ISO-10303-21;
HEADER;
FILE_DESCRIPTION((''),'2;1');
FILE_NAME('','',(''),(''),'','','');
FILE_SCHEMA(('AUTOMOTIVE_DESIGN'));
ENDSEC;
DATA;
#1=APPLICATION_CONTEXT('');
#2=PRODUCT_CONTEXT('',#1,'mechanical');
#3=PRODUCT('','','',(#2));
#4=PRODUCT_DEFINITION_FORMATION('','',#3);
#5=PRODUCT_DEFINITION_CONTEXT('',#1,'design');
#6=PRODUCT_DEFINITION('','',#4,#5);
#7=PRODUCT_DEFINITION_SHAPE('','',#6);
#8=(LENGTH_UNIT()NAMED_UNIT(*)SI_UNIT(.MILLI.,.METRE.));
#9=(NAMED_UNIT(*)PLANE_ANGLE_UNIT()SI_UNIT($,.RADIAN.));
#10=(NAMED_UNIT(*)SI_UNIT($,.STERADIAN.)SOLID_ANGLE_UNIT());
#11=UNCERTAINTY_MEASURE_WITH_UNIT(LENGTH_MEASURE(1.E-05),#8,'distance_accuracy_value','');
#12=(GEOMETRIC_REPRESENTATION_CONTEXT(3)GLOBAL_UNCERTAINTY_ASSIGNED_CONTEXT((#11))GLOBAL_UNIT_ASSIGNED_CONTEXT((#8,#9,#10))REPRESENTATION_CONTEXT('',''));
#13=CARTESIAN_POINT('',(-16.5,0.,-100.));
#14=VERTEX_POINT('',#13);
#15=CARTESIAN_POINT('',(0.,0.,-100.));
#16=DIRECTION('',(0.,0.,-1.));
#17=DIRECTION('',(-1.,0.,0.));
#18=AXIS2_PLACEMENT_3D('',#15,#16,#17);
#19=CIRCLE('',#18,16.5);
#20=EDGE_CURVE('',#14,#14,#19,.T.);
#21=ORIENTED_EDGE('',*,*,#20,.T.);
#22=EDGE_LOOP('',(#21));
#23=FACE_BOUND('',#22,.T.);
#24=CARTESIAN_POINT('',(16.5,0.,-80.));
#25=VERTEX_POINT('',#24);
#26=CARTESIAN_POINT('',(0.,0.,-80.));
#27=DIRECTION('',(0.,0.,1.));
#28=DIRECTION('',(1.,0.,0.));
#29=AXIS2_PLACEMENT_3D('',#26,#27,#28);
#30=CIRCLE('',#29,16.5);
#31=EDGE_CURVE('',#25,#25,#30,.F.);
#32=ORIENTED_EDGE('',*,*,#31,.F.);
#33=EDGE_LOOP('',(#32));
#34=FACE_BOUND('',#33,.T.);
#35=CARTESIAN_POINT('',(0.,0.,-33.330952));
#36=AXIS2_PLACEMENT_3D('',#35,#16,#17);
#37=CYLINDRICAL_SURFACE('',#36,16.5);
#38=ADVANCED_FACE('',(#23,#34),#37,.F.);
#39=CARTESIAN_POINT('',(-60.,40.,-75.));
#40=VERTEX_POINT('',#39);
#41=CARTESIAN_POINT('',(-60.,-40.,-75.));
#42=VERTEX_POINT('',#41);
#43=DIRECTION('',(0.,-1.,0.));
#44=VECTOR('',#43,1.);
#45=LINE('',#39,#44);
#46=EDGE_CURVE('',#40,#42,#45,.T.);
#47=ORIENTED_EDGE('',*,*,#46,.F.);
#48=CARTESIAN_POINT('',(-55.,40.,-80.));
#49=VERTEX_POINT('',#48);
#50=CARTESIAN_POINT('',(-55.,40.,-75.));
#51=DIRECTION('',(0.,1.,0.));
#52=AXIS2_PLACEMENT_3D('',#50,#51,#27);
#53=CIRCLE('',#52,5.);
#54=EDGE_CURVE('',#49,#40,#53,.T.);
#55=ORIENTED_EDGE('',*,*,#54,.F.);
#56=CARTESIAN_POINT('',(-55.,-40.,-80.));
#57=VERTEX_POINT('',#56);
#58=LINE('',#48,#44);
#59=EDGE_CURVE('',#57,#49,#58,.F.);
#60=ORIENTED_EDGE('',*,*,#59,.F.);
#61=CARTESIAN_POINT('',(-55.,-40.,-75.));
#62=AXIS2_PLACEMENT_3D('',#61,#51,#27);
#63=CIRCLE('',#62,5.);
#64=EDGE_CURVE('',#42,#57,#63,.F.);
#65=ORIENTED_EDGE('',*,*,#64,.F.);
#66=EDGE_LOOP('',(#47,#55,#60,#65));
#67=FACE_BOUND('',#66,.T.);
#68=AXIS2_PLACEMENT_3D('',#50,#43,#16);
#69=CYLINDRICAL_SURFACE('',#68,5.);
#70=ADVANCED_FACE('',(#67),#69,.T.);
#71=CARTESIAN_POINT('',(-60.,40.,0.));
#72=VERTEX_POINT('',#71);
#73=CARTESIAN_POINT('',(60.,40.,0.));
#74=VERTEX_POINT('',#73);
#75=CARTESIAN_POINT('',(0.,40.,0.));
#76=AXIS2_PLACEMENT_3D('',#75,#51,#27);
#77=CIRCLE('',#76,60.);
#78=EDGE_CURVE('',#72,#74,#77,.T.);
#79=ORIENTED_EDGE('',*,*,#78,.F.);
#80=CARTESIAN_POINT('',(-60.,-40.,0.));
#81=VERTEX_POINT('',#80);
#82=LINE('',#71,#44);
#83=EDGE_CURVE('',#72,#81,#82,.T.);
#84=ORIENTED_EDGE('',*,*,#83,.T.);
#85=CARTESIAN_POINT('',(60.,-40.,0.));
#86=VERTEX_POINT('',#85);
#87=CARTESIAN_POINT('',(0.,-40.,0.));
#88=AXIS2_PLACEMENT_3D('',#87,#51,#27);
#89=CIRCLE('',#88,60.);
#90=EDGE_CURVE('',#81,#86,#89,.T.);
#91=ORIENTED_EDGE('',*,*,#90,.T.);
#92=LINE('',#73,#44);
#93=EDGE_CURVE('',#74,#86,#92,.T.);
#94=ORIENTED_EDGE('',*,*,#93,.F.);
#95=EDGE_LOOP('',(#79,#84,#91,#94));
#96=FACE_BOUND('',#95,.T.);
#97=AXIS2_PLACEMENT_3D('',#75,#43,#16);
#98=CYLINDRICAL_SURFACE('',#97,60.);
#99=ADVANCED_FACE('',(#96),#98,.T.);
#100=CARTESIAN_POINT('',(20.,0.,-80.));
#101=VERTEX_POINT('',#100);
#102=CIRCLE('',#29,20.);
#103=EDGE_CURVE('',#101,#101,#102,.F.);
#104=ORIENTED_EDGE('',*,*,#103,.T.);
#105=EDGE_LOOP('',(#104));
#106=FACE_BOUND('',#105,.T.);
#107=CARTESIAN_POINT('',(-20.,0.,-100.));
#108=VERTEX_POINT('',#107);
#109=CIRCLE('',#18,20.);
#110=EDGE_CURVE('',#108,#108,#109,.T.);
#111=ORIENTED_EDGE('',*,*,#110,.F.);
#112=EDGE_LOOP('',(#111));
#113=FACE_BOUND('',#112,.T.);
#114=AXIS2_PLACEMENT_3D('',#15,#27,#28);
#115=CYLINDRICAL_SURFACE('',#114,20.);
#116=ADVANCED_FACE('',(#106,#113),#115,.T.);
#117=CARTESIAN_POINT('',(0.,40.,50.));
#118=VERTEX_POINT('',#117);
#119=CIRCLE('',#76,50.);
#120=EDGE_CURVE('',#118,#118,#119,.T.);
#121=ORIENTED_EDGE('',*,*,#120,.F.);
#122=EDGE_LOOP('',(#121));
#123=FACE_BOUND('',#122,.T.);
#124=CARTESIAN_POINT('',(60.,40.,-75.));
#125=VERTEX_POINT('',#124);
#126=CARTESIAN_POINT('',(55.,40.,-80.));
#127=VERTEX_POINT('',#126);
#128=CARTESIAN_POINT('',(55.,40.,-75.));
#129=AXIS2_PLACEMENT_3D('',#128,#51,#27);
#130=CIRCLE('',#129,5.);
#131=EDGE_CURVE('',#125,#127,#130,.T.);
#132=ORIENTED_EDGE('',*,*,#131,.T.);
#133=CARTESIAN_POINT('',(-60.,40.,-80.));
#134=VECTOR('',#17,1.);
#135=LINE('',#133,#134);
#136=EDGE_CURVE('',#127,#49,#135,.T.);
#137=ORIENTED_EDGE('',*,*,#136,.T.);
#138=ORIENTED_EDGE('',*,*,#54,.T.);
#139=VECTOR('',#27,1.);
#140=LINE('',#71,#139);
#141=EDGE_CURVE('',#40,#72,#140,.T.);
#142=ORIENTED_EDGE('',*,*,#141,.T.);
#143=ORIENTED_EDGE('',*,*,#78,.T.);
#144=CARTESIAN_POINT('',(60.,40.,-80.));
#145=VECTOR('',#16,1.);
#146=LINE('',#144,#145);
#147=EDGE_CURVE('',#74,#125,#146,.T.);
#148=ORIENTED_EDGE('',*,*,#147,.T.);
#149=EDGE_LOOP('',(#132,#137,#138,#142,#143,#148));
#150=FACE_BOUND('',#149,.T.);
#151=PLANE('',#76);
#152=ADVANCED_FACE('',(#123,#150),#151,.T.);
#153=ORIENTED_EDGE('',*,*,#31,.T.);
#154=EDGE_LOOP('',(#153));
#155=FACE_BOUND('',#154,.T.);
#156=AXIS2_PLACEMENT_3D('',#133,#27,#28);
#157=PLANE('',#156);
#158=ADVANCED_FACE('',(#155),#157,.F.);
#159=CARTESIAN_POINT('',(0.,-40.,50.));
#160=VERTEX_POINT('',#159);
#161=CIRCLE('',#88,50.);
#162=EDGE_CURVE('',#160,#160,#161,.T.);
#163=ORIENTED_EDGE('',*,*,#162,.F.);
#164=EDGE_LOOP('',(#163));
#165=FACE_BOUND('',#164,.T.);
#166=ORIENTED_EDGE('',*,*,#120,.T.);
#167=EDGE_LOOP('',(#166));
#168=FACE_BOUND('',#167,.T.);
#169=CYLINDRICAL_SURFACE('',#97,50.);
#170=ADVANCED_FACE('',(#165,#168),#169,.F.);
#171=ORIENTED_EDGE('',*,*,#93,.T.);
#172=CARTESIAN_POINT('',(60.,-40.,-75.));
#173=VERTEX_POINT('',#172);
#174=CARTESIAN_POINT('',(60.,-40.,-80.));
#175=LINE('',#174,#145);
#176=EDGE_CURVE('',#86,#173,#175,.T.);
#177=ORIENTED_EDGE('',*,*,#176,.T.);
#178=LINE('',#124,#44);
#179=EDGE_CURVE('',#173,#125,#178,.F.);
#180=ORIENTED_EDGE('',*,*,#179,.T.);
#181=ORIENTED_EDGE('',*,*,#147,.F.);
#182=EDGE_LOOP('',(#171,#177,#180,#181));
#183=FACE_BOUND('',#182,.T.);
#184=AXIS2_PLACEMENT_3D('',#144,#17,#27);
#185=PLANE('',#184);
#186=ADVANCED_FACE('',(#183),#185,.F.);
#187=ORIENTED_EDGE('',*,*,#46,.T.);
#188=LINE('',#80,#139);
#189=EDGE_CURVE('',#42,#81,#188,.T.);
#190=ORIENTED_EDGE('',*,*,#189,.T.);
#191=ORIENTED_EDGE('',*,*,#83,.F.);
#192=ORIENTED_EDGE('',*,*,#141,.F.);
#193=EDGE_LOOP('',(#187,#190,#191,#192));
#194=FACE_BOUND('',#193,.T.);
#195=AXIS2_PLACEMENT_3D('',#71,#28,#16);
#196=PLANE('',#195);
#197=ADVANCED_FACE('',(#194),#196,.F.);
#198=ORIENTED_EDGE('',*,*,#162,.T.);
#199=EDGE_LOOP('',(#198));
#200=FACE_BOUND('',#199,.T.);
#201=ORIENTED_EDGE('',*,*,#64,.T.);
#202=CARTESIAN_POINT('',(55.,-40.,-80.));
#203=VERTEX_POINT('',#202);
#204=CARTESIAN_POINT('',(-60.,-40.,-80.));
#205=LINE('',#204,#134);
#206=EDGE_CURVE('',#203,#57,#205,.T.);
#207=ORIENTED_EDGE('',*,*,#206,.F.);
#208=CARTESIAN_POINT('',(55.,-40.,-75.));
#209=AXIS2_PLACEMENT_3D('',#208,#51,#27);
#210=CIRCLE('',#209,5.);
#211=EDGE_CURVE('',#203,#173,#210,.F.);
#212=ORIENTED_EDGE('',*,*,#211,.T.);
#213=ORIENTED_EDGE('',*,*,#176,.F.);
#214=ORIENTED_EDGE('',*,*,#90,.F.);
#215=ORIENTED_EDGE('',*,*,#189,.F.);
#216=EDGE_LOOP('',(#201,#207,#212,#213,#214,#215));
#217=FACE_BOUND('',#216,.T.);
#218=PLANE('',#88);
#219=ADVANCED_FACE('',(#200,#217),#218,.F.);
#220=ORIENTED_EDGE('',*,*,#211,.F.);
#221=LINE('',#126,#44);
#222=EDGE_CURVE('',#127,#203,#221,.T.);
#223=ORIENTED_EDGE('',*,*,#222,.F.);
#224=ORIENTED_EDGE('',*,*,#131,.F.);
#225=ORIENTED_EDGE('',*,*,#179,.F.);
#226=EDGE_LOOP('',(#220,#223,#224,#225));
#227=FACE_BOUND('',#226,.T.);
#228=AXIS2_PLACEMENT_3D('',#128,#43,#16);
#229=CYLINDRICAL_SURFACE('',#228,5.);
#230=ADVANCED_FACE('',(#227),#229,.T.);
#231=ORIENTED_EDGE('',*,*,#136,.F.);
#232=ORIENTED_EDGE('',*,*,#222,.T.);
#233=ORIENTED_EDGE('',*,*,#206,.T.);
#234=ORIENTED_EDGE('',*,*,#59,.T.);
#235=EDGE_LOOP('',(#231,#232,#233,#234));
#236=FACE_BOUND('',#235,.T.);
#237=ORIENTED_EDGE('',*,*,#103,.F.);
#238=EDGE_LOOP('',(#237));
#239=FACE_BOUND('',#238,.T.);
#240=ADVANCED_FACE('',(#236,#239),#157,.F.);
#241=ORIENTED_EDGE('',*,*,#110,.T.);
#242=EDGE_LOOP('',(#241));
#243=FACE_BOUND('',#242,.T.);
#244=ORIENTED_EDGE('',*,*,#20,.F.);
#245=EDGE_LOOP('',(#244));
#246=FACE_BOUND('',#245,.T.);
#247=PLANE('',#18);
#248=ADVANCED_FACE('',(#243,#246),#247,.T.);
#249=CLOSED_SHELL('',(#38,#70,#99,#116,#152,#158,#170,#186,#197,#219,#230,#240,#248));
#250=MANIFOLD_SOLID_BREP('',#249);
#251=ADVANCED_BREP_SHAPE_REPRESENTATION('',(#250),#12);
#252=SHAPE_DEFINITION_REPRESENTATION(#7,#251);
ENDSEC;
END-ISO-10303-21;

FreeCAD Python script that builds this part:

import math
import FreeCAD as App
import Part
import Sketcher


def edges_at(feature, points):
    """Names of the edges that pass closest to the given points."""
    edges = feature.Shape.Edges
    near = lambda p: min(range(len(edges)), key=lambda i: edges[i].distToShape(Part.Vertex(*p))[0])
    return sorted({f"Edge{near(p) + 1}" for p in points})

doc = App.newDocument("Part")
body = doc.addObject("PartDesign::Body", "Body")

sketch1 = body.newObject("Sketcher::SketchObject", "Sketch")
sketch1.AttachmentSupport = (doc.getObject("XZ_Plane"), [""])
sketch1.MapMode = "FlatFace"
sketch1.addGeometry(Part.LineSegment(App.Vector(-60, -80, 0), App.Vector(-60, 0, 0)), False)
sketch1.addGeometry(Part.ArcOfCircle(Part.Circle(App.Vector(0, 0, 0), App.Vector(0, 0, 1), 60), math.radians(0), math.radians(180)), False)
sketch1.addGeometry(Part.LineSegment(App.Vector(60, 0, 0), App.Vector(60, -80, 0)), False)
sketch1.addGeometry(Part.LineSegment(App.Vector(60, -80, 0), App.Vector(-60, -80, 0)), False)
sketch1.addGeometry(Part.Circle(App.Vector(0, 0, 0), App.Vector(0, 0, 1), 50), False)
sketch1.addConstraint(Sketcher.Constraint("Tangent", 0, 2, 1, 2))
sketch1.addConstraint(Sketcher.Constraint("Tangent", 1, 1, 2, 1))
sketch1.addConstraint(Sketcher.Constraint("Coincident", 2, 2, 3, 1))
sketch1.addConstraint(Sketcher.Constraint("Coincident", 3, 2, 0, 1))
sketch1.addConstraint(Sketcher.Constraint("Vertical", 0))
sketch1.addConstraint(Sketcher.Constraint("Vertical", 2))
sketch1.addConstraint(Sketcher.Constraint("Horizontal", 3))
sketch1.addConstraint(Sketcher.Constraint("Coincident", 1, 3, -1, 1))
sketch1.addConstraint(Sketcher.Constraint("Coincident", 4, 3, -1, 1))
sketch1.addConstraint(Sketcher.Constraint("Diameter", 4, 100.0))
sketch1.addConstraint(Sketcher.Constraint("Radius", 1, 60.0))
sketch1.addConstraint(Sketcher.Constraint("DistanceY", 0, 1, 0, 2, 80.0))
pad1 = body.newObject("PartDesign::Pad", "Pad")
pad1.Profile = sketch1
pad1.Length = 80
pad1.Midplane = True
doc.recompute()

fillet = body.newObject("PartDesign::Fillet", "Fillet")
fillet.Base = (pad1, edges_at(pad1, [(-60, 0, -80), (60, 0, -80)]))
fillet.Radius = 5

sketch2 = body.newObject("Sketcher::SketchObject", "Sketch001")
sketch2.AttachmentSupport = (doc.getObject("XY_Plane"), [""])
sketch2.MapMode = "FlatFace"
sketch2.AttachmentOffset = App.Placement(App.Vector(0, 0, -80), App.Rotation())
sketch2.addGeometry(Part.Circle(App.Vector(0, 0, 0), App.Vector(0, 0, 1), 20), False)
sketch2.addConstraint(Sketcher.Constraint("Coincident", 0, 3, -1, 1))
sketch2.addConstraint(Sketcher.Constraint("Diameter", 0, 40.0))
pad2 = body.newObject("PartDesign::Pad", "Pad001")
pad2.Profile = sketch2
pad2.Length = 20
pad2.Reversed = True

sketch3 = body.newObject("Sketcher::SketchObject", "Sketch002")
sketch3.AttachmentSupport = (doc.getObject("XY_Plane"), [""])
sketch3.MapMode = "FlatFace"
sketch3.AttachmentOffset = App.Placement(App.Vector(0, 0, -100), App.Rotation())
sketch3.addGeometry(Part.Circle(App.Vector(0, 0, 0), App.Vector(0, 0, 1), 16.5), False)
sketch3.addConstraint(Sketcher.Constraint("Coincident", 0, 3, -1, 1))
sketch3.addConstraint(Sketcher.Constraint("Diameter", 0, 33.0))
pocket1 = body.newObject("PartDesign::Pocket", "Pocket")
pocket1.Profile = sketch3
pocket1.Length = 20
pocket1.Reversed = True

doc.recompute()
